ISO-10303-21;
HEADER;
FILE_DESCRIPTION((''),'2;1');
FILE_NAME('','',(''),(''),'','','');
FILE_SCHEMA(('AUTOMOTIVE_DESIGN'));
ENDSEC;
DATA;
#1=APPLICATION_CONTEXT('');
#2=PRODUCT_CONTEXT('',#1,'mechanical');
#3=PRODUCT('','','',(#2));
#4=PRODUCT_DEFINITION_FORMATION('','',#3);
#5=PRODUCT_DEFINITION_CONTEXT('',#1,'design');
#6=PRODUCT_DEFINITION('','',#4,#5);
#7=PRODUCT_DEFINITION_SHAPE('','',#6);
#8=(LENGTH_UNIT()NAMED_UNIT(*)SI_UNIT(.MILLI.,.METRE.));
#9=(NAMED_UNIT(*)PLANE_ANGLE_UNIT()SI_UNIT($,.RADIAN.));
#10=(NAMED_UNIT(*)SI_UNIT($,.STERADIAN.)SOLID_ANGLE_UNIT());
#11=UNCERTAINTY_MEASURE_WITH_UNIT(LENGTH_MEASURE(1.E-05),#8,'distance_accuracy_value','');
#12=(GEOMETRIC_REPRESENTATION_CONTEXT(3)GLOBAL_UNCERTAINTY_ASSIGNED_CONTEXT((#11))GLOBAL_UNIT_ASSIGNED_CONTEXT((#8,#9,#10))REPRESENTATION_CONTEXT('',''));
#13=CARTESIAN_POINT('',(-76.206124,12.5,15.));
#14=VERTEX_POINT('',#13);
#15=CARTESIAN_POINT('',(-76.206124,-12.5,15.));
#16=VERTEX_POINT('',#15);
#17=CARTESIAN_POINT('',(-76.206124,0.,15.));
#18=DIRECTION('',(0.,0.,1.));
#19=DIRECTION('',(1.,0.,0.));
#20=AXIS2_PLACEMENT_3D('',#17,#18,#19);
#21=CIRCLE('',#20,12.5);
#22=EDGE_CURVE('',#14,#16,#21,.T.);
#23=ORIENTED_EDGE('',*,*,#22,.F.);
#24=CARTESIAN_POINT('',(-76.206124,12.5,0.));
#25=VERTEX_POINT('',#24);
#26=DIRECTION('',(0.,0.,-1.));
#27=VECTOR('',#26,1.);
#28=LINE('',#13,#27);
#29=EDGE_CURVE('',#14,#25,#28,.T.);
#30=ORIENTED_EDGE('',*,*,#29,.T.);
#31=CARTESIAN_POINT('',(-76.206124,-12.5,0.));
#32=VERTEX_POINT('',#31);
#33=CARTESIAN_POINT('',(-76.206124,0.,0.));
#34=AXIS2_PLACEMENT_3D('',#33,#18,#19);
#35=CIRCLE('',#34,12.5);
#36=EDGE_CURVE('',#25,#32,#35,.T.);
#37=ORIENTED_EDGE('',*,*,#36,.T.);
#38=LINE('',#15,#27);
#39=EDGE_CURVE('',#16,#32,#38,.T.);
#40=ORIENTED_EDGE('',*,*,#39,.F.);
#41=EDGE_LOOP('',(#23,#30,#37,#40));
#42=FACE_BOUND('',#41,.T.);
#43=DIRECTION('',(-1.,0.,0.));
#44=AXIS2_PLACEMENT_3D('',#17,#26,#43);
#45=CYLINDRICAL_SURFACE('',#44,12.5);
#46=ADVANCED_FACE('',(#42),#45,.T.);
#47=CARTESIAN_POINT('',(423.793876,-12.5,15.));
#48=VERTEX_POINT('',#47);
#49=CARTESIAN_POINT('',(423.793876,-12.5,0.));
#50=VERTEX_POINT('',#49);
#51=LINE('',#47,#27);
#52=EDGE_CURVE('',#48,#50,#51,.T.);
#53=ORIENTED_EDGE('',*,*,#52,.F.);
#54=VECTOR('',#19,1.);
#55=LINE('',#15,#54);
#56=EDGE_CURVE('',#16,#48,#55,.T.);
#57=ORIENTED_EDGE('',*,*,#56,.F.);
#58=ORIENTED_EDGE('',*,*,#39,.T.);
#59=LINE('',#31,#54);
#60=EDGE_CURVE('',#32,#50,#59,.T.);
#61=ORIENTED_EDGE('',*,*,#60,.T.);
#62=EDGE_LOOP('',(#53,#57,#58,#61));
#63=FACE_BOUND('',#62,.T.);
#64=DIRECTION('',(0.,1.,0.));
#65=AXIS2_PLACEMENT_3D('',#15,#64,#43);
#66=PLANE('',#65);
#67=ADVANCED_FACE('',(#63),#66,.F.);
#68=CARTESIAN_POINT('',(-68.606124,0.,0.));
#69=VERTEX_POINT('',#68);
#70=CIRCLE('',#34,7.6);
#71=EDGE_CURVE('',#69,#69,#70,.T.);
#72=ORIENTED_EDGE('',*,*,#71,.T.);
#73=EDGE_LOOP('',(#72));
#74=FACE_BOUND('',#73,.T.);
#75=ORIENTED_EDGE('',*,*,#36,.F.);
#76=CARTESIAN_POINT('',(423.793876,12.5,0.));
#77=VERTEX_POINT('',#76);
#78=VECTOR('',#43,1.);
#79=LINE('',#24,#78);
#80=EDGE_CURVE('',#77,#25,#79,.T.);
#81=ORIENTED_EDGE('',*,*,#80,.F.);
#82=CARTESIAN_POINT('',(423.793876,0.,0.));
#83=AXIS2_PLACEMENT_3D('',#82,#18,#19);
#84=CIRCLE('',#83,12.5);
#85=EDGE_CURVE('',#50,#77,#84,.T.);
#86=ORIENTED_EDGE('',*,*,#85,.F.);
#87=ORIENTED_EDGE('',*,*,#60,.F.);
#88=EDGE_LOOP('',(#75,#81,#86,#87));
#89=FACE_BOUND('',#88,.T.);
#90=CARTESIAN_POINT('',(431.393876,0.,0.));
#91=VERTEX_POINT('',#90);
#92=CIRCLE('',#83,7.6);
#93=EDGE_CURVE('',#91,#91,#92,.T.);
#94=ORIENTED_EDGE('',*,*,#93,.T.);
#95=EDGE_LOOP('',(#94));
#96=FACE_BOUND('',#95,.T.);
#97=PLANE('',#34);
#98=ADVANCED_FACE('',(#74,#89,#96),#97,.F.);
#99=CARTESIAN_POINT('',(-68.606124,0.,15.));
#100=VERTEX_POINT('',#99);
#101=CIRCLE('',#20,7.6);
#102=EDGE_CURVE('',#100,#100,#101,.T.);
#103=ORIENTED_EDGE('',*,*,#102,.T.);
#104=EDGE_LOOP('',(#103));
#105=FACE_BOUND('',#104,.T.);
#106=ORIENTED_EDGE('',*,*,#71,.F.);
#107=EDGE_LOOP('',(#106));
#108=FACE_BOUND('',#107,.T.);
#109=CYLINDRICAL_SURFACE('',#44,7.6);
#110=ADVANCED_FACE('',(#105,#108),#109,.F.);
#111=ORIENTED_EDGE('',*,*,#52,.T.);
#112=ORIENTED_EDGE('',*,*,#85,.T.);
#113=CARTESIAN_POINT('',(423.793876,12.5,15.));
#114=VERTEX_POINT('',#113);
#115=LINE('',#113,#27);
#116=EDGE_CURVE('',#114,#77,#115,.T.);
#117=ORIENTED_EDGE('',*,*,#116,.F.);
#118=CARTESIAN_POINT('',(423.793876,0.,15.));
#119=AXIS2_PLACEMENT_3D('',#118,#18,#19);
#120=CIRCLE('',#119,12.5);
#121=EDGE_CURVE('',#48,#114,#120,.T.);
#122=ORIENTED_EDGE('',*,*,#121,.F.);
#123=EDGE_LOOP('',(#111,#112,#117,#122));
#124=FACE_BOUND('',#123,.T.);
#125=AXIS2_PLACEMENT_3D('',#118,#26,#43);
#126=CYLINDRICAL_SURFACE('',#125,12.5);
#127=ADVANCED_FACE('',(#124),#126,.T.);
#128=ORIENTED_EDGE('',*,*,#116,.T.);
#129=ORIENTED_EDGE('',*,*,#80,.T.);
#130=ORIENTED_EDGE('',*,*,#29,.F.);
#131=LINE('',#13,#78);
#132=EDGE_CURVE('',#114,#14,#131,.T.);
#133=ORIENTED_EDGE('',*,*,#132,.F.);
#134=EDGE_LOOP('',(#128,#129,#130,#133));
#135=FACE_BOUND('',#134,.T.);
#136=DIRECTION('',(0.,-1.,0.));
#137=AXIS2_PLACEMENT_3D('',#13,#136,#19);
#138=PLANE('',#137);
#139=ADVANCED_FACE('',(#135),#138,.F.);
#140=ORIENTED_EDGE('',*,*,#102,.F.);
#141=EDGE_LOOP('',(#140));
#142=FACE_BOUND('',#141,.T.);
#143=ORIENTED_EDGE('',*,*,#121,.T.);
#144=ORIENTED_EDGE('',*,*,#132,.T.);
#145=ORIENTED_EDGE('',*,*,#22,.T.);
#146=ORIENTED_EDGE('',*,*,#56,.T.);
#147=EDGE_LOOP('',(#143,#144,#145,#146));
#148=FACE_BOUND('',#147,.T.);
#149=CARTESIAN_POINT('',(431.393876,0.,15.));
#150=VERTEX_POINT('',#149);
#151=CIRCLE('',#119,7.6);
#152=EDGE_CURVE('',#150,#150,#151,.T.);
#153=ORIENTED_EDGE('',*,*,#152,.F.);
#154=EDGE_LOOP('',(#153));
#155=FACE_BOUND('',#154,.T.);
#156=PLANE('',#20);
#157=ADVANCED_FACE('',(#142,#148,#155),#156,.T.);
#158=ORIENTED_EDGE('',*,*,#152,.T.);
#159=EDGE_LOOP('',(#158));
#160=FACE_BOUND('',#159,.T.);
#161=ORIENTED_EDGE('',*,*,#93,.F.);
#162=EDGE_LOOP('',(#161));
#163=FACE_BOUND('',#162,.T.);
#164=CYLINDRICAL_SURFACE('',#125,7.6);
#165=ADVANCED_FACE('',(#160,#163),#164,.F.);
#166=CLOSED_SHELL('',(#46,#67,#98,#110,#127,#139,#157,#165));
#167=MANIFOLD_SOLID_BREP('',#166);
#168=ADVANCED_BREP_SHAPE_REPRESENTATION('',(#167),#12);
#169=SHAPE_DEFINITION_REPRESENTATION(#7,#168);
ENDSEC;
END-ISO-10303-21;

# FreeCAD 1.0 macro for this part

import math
import FreeCAD as App
import Part
import Sketcher
Q = App.Units.Quantity

doc = App.newDocument("Part")
params = doc.addObject("Spreadsheet::Sheet", "Params")
for row, (alias, value) in enumerate([
    ("sketch1_diameter", "15.2 mm"),
    ("sketch1_radius", "12.5 mm"),
    ("sketch1_width", "500 mm"),
    ("pad1_length", "15 mm"),
], start=1):
    params.set(f"A{row}", alias)
    params.set(f"B{row}", "=" + value)
    params.setAlias(f"B{row}", alias)

body = doc.addObject("PartDesign::Body", "Body")

# Sketch on XY plane
sketch1 = doc.addObject("Sketcher::SketchObject", "Sketch")
body.addObject(sketch1)
sketch1.AttachmentSupport = (doc.XY_Plane, [""])
sketch1.MapMode = "FlatFace"
sketch1.addGeometry(Part.LineSegment(App.Vector(423.793876, 12.5, 0), App.Vector(-76.206124, 12.5, 0)), False)
sketch1.addGeometry(Part.ArcOfCircle(Part.Circle(App.Vector(-76.206124, 0, 0), App.Vector(0, 0, 1), 12.5), math.radians(90), math.radians(270)), False)
sketch1.addGeometry(Part.LineSegment(App.Vector(-76.206124, -12.5, 0), App.Vector(423.793876, -12.5, 0)), False)
sketch1.addGeometry(Part.ArcOfCircle(Part.Circle(App.Vector(423.793876, 0, 0), App.Vector(0, 0, 1), 12.5), math.radians(-90), math.radians(90)), False)
sketch1.addGeometry(Part.Circle(App.Vector(423.793876, 0, 0), App.Vector(0, 0, 1), 7.6), False)
sketch1.addGeometry(Part.Circle(App.Vector(-76.206124, 0, 0), App.Vector(0, 0, 1), 7.6), False)
sketch1.addConstraint(Sketcher.Constraint("Tangent", 0, 2, 1, 1))
sketch1.addConstraint(Sketcher.Constraint("Tangent", 1, 2, 2, 1))
sketch1.addConstraint(Sketcher.Constraint("Tangent", 2, 2, 3, 1))
sketch1.addConstraint(Sketcher.Constraint("Tangent", 3, 2, 0, 1))
sketch1.addConstraint(Sketcher.Constraint("Horizontal", 0))
sketch1.addConstraint(Sketcher.Constraint("Horizontal", 2))
sketch1.addConstraint(Sketcher.Constraint("Coincident", 4, 3, 3, 3))
sketch1.addConstraint(Sketcher.Constraint("Coincident", 5, 3, 1, 3))
sketch1.addConstraint(Sketcher.Constraint("Equal", 4, 5))
sketch1.addConstraint(Sketcher.Constraint("PointOnObject", 1, 3, -1))
sketch1.addConstraint(Sketcher.Constraint("Diameter", 4, Q("15.2 mm")))
sketch1.addConstraint(Sketcher.Constraint("Radius", 1, Q("12.5 mm")))
sketch1.addConstraint(Sketcher.Constraint("DistanceX", 0, 2, 0, 1, Q("500 mm")))
sketch1.addConstraint(Sketcher.Constraint("DistanceX", 1, 3, -1, 1, Q("76.206124 mm")))
sketch1.setExpression("Constraints[10]", "Params.sketch1_diameter")
sketch1.setExpression("Constraints[11]", "Params.sketch1_radius")
sketch1.setExpression("Constraints[12]", "Params.sketch1_width")
pad1 = doc.addObject("PartDesign::Pad", "Pad")
body.addObject(pad1)
pad1.Profile = sketch1
pad1.setExpression("Length", "Params.pad1_length")

doc.recompute()
